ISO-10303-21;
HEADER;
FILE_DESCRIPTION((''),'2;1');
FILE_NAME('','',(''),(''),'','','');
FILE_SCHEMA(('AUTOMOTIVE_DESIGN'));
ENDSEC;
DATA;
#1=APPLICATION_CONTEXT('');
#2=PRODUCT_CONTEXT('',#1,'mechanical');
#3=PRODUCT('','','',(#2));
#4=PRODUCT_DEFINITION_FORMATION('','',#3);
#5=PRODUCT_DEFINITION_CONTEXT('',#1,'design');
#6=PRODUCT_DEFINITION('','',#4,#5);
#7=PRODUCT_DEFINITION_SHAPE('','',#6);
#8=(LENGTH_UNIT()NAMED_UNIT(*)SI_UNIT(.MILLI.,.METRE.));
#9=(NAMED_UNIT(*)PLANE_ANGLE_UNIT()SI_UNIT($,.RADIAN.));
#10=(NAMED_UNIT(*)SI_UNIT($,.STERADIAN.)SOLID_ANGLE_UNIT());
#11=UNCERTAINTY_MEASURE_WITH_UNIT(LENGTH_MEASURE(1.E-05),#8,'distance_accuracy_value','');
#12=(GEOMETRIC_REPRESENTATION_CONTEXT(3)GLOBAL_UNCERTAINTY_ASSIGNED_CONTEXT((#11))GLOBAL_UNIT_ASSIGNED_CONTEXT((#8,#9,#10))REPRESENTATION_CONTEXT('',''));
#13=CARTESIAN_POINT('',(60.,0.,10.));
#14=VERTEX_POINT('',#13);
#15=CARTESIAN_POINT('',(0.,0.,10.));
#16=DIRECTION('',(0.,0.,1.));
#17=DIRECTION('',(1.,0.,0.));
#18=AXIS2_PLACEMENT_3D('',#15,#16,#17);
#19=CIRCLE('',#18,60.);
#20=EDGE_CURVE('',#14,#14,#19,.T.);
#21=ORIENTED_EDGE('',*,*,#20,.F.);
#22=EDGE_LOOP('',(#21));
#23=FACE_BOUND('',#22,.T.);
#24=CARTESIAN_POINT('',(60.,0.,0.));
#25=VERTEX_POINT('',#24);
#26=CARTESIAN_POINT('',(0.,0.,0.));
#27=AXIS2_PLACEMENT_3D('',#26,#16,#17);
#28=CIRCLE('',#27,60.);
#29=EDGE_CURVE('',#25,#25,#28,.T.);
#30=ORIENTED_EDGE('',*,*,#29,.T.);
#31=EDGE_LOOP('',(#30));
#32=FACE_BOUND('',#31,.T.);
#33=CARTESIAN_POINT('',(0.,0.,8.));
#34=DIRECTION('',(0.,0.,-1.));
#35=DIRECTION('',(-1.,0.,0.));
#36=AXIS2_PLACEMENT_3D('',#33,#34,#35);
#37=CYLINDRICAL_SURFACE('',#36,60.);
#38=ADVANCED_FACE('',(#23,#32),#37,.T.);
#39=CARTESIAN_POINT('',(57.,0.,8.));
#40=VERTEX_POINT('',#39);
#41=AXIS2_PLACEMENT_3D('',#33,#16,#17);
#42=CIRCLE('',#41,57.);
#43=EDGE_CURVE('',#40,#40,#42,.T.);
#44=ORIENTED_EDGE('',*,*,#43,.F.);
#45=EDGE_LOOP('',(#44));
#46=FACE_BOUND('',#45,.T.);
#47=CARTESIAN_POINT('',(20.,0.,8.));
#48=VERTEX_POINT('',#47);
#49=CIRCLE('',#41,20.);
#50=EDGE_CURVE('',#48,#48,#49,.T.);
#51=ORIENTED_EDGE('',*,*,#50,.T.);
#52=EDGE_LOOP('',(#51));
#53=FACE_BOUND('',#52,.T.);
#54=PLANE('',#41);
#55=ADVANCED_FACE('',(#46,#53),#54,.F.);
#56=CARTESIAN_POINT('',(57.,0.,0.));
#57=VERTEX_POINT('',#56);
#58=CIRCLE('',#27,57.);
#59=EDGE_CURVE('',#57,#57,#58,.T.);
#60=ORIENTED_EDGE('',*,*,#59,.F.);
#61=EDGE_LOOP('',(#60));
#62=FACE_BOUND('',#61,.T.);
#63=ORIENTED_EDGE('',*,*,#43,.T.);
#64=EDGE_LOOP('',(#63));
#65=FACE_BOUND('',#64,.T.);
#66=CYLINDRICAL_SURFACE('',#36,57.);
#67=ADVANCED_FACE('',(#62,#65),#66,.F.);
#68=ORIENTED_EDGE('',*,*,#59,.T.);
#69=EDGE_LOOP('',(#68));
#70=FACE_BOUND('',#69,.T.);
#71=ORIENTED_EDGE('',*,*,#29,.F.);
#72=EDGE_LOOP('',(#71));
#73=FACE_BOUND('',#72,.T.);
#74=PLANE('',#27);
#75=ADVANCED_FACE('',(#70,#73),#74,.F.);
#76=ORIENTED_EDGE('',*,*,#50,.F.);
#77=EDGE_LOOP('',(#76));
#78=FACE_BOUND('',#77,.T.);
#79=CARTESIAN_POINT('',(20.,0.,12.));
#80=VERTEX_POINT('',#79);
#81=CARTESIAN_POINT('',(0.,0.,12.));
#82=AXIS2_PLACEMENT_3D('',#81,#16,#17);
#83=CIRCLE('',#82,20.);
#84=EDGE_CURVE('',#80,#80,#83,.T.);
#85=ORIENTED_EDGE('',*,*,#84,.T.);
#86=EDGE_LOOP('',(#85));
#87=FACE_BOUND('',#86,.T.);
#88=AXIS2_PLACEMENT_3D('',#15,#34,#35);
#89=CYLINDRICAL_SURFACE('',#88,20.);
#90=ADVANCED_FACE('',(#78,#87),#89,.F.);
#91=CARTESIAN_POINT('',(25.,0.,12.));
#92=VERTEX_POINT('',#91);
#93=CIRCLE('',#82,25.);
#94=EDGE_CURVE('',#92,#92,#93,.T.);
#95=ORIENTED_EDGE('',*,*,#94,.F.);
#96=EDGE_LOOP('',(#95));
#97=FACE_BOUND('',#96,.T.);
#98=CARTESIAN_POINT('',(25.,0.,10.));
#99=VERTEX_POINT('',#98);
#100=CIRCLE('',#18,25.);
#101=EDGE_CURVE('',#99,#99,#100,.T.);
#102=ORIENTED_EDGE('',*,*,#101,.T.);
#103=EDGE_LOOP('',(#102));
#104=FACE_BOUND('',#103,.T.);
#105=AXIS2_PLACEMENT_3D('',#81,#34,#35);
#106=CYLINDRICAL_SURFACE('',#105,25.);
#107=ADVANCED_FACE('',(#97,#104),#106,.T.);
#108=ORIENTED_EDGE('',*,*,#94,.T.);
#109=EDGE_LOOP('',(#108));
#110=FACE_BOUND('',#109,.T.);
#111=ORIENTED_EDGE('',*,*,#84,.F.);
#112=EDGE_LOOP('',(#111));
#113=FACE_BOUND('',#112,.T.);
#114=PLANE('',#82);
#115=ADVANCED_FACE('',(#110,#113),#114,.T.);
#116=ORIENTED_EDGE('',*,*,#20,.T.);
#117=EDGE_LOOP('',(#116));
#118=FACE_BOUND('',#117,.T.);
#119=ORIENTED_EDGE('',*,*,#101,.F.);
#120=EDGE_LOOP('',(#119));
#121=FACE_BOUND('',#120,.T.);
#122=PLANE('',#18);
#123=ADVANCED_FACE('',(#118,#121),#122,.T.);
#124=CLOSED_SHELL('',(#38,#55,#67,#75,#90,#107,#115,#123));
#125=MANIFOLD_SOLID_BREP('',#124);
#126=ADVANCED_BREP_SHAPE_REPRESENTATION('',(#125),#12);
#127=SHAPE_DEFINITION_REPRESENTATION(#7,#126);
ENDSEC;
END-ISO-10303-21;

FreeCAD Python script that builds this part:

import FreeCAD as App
import Part
import Sketcher
from FreeCAD import Vector
Q = App.Units.Quantity

doc = App.newDocument("Part")
body = doc.addObject("PartDesign::Body", "Body")

# Sketch on XY plane
sketch1 = body.newObject("Sketcher::SketchObject", "Sketch")
sketch1.AttachmentSupport = (doc.getObject("XY_Plane"), [""])
sketch1.MapMode = "FlatFace"
sketch1.addGeometry(Part.Circle(Vector(0, 0, 0), Vector(0, 0, 1), 60), False)
sketch1.addGeometry(Part.Circle(Vector(0, 0, 0), Vector(0, 0, 1), 57), False)
sketch1.addConstraint(Sketcher.Constraint("Coincident", 0, 3, -1, 1))
sketch1.addConstraint(Sketcher.Constraint("Coincident", 1, 3, -1, 1))
sketch1.addConstraint(Sketcher.Constraint("Diameter", 0, Q("120 mm")))
sketch1.addConstraint(Sketcher.Constraint("Diameter", 1, Q("114 mm")))
pad1 = body.newObject("PartDesign::Pad", "Pad")
pad1.Profile = sketch1
pad1.Length = 8

# Sketch on XY plane
sketch2 = body.newObject("Sketcher::SketchObject", "Sketch001")
sketch2.AttachmentSupport = (doc.getObject("XY_Plane"), [""])
sketch2.MapMode = "FlatFace"
sketch2.AttachmentOffset = App.Placement(Vector(0, 0, 8), App.Rotation())
sketch2.addGeometry(Part.Circle(Vector(0, 0, 0), Vector(0, 0, 1), 60), False)
sketch2.addGeometry(Part.Circle(Vector(0, 0, 0), Vector(0, 0, 1), 20), False)
sketch2.addConstraint(Sketcher.Constraint("Coincident", 0, 3, -1, 1))
sketch2.addConstraint(Sketcher.Constraint("Coincident", 1, 3, -1, 1))
sketch2.addConstraint(Sketcher.Constraint("Diameter", 0, Q("120 mm")))
sketch2.addConstraint(Sketcher.Constraint("Diameter", 1, Q("40 mm")))
pad2 = body.newObject("PartDesign::Pad", "Pad001")
pad2.Profile = sketch2
pad2.Length = 2

# Sketch on XY plane
sketch3 = body.newObject("Sketcher::SketchObject", "Sketch002")
sketch3.AttachmentSupport = (doc.getObject("XY_Plane"), [""])
sketch3.MapMode = "FlatFace"
sketch3.AttachmentOffset = App.Placement(Vector(0, 0, 10), App.Rotation())
sketch3.addGeometry(Part.Circle(Vector(0, 0, 0), Vector(0, 0, 1), 25), False)
sketch3.addGeometry(Part.Circle(Vector(0, 0, 0), Vector(0, 0, 1), 20), False)
sketch3.addConstraint(Sketcher.Constraint("Coincident", 0, 3, -1, 1))
sketch3.addConstraint(Sketcher.Constraint("Coincident", 1, 3, -1, 1))
sketch3.addConstraint(Sketcher.Constraint("Diameter", 0, Q("50 mm")))
sketch3.addConstraint(Sketcher.Constraint("Diameter", 1, Q("40 mm")))
pad3 = body.newObject("PartDesign::Pad", "Pad002")
pad3.Profile = sketch3
pad3.Length = 2

doc.recompute()
